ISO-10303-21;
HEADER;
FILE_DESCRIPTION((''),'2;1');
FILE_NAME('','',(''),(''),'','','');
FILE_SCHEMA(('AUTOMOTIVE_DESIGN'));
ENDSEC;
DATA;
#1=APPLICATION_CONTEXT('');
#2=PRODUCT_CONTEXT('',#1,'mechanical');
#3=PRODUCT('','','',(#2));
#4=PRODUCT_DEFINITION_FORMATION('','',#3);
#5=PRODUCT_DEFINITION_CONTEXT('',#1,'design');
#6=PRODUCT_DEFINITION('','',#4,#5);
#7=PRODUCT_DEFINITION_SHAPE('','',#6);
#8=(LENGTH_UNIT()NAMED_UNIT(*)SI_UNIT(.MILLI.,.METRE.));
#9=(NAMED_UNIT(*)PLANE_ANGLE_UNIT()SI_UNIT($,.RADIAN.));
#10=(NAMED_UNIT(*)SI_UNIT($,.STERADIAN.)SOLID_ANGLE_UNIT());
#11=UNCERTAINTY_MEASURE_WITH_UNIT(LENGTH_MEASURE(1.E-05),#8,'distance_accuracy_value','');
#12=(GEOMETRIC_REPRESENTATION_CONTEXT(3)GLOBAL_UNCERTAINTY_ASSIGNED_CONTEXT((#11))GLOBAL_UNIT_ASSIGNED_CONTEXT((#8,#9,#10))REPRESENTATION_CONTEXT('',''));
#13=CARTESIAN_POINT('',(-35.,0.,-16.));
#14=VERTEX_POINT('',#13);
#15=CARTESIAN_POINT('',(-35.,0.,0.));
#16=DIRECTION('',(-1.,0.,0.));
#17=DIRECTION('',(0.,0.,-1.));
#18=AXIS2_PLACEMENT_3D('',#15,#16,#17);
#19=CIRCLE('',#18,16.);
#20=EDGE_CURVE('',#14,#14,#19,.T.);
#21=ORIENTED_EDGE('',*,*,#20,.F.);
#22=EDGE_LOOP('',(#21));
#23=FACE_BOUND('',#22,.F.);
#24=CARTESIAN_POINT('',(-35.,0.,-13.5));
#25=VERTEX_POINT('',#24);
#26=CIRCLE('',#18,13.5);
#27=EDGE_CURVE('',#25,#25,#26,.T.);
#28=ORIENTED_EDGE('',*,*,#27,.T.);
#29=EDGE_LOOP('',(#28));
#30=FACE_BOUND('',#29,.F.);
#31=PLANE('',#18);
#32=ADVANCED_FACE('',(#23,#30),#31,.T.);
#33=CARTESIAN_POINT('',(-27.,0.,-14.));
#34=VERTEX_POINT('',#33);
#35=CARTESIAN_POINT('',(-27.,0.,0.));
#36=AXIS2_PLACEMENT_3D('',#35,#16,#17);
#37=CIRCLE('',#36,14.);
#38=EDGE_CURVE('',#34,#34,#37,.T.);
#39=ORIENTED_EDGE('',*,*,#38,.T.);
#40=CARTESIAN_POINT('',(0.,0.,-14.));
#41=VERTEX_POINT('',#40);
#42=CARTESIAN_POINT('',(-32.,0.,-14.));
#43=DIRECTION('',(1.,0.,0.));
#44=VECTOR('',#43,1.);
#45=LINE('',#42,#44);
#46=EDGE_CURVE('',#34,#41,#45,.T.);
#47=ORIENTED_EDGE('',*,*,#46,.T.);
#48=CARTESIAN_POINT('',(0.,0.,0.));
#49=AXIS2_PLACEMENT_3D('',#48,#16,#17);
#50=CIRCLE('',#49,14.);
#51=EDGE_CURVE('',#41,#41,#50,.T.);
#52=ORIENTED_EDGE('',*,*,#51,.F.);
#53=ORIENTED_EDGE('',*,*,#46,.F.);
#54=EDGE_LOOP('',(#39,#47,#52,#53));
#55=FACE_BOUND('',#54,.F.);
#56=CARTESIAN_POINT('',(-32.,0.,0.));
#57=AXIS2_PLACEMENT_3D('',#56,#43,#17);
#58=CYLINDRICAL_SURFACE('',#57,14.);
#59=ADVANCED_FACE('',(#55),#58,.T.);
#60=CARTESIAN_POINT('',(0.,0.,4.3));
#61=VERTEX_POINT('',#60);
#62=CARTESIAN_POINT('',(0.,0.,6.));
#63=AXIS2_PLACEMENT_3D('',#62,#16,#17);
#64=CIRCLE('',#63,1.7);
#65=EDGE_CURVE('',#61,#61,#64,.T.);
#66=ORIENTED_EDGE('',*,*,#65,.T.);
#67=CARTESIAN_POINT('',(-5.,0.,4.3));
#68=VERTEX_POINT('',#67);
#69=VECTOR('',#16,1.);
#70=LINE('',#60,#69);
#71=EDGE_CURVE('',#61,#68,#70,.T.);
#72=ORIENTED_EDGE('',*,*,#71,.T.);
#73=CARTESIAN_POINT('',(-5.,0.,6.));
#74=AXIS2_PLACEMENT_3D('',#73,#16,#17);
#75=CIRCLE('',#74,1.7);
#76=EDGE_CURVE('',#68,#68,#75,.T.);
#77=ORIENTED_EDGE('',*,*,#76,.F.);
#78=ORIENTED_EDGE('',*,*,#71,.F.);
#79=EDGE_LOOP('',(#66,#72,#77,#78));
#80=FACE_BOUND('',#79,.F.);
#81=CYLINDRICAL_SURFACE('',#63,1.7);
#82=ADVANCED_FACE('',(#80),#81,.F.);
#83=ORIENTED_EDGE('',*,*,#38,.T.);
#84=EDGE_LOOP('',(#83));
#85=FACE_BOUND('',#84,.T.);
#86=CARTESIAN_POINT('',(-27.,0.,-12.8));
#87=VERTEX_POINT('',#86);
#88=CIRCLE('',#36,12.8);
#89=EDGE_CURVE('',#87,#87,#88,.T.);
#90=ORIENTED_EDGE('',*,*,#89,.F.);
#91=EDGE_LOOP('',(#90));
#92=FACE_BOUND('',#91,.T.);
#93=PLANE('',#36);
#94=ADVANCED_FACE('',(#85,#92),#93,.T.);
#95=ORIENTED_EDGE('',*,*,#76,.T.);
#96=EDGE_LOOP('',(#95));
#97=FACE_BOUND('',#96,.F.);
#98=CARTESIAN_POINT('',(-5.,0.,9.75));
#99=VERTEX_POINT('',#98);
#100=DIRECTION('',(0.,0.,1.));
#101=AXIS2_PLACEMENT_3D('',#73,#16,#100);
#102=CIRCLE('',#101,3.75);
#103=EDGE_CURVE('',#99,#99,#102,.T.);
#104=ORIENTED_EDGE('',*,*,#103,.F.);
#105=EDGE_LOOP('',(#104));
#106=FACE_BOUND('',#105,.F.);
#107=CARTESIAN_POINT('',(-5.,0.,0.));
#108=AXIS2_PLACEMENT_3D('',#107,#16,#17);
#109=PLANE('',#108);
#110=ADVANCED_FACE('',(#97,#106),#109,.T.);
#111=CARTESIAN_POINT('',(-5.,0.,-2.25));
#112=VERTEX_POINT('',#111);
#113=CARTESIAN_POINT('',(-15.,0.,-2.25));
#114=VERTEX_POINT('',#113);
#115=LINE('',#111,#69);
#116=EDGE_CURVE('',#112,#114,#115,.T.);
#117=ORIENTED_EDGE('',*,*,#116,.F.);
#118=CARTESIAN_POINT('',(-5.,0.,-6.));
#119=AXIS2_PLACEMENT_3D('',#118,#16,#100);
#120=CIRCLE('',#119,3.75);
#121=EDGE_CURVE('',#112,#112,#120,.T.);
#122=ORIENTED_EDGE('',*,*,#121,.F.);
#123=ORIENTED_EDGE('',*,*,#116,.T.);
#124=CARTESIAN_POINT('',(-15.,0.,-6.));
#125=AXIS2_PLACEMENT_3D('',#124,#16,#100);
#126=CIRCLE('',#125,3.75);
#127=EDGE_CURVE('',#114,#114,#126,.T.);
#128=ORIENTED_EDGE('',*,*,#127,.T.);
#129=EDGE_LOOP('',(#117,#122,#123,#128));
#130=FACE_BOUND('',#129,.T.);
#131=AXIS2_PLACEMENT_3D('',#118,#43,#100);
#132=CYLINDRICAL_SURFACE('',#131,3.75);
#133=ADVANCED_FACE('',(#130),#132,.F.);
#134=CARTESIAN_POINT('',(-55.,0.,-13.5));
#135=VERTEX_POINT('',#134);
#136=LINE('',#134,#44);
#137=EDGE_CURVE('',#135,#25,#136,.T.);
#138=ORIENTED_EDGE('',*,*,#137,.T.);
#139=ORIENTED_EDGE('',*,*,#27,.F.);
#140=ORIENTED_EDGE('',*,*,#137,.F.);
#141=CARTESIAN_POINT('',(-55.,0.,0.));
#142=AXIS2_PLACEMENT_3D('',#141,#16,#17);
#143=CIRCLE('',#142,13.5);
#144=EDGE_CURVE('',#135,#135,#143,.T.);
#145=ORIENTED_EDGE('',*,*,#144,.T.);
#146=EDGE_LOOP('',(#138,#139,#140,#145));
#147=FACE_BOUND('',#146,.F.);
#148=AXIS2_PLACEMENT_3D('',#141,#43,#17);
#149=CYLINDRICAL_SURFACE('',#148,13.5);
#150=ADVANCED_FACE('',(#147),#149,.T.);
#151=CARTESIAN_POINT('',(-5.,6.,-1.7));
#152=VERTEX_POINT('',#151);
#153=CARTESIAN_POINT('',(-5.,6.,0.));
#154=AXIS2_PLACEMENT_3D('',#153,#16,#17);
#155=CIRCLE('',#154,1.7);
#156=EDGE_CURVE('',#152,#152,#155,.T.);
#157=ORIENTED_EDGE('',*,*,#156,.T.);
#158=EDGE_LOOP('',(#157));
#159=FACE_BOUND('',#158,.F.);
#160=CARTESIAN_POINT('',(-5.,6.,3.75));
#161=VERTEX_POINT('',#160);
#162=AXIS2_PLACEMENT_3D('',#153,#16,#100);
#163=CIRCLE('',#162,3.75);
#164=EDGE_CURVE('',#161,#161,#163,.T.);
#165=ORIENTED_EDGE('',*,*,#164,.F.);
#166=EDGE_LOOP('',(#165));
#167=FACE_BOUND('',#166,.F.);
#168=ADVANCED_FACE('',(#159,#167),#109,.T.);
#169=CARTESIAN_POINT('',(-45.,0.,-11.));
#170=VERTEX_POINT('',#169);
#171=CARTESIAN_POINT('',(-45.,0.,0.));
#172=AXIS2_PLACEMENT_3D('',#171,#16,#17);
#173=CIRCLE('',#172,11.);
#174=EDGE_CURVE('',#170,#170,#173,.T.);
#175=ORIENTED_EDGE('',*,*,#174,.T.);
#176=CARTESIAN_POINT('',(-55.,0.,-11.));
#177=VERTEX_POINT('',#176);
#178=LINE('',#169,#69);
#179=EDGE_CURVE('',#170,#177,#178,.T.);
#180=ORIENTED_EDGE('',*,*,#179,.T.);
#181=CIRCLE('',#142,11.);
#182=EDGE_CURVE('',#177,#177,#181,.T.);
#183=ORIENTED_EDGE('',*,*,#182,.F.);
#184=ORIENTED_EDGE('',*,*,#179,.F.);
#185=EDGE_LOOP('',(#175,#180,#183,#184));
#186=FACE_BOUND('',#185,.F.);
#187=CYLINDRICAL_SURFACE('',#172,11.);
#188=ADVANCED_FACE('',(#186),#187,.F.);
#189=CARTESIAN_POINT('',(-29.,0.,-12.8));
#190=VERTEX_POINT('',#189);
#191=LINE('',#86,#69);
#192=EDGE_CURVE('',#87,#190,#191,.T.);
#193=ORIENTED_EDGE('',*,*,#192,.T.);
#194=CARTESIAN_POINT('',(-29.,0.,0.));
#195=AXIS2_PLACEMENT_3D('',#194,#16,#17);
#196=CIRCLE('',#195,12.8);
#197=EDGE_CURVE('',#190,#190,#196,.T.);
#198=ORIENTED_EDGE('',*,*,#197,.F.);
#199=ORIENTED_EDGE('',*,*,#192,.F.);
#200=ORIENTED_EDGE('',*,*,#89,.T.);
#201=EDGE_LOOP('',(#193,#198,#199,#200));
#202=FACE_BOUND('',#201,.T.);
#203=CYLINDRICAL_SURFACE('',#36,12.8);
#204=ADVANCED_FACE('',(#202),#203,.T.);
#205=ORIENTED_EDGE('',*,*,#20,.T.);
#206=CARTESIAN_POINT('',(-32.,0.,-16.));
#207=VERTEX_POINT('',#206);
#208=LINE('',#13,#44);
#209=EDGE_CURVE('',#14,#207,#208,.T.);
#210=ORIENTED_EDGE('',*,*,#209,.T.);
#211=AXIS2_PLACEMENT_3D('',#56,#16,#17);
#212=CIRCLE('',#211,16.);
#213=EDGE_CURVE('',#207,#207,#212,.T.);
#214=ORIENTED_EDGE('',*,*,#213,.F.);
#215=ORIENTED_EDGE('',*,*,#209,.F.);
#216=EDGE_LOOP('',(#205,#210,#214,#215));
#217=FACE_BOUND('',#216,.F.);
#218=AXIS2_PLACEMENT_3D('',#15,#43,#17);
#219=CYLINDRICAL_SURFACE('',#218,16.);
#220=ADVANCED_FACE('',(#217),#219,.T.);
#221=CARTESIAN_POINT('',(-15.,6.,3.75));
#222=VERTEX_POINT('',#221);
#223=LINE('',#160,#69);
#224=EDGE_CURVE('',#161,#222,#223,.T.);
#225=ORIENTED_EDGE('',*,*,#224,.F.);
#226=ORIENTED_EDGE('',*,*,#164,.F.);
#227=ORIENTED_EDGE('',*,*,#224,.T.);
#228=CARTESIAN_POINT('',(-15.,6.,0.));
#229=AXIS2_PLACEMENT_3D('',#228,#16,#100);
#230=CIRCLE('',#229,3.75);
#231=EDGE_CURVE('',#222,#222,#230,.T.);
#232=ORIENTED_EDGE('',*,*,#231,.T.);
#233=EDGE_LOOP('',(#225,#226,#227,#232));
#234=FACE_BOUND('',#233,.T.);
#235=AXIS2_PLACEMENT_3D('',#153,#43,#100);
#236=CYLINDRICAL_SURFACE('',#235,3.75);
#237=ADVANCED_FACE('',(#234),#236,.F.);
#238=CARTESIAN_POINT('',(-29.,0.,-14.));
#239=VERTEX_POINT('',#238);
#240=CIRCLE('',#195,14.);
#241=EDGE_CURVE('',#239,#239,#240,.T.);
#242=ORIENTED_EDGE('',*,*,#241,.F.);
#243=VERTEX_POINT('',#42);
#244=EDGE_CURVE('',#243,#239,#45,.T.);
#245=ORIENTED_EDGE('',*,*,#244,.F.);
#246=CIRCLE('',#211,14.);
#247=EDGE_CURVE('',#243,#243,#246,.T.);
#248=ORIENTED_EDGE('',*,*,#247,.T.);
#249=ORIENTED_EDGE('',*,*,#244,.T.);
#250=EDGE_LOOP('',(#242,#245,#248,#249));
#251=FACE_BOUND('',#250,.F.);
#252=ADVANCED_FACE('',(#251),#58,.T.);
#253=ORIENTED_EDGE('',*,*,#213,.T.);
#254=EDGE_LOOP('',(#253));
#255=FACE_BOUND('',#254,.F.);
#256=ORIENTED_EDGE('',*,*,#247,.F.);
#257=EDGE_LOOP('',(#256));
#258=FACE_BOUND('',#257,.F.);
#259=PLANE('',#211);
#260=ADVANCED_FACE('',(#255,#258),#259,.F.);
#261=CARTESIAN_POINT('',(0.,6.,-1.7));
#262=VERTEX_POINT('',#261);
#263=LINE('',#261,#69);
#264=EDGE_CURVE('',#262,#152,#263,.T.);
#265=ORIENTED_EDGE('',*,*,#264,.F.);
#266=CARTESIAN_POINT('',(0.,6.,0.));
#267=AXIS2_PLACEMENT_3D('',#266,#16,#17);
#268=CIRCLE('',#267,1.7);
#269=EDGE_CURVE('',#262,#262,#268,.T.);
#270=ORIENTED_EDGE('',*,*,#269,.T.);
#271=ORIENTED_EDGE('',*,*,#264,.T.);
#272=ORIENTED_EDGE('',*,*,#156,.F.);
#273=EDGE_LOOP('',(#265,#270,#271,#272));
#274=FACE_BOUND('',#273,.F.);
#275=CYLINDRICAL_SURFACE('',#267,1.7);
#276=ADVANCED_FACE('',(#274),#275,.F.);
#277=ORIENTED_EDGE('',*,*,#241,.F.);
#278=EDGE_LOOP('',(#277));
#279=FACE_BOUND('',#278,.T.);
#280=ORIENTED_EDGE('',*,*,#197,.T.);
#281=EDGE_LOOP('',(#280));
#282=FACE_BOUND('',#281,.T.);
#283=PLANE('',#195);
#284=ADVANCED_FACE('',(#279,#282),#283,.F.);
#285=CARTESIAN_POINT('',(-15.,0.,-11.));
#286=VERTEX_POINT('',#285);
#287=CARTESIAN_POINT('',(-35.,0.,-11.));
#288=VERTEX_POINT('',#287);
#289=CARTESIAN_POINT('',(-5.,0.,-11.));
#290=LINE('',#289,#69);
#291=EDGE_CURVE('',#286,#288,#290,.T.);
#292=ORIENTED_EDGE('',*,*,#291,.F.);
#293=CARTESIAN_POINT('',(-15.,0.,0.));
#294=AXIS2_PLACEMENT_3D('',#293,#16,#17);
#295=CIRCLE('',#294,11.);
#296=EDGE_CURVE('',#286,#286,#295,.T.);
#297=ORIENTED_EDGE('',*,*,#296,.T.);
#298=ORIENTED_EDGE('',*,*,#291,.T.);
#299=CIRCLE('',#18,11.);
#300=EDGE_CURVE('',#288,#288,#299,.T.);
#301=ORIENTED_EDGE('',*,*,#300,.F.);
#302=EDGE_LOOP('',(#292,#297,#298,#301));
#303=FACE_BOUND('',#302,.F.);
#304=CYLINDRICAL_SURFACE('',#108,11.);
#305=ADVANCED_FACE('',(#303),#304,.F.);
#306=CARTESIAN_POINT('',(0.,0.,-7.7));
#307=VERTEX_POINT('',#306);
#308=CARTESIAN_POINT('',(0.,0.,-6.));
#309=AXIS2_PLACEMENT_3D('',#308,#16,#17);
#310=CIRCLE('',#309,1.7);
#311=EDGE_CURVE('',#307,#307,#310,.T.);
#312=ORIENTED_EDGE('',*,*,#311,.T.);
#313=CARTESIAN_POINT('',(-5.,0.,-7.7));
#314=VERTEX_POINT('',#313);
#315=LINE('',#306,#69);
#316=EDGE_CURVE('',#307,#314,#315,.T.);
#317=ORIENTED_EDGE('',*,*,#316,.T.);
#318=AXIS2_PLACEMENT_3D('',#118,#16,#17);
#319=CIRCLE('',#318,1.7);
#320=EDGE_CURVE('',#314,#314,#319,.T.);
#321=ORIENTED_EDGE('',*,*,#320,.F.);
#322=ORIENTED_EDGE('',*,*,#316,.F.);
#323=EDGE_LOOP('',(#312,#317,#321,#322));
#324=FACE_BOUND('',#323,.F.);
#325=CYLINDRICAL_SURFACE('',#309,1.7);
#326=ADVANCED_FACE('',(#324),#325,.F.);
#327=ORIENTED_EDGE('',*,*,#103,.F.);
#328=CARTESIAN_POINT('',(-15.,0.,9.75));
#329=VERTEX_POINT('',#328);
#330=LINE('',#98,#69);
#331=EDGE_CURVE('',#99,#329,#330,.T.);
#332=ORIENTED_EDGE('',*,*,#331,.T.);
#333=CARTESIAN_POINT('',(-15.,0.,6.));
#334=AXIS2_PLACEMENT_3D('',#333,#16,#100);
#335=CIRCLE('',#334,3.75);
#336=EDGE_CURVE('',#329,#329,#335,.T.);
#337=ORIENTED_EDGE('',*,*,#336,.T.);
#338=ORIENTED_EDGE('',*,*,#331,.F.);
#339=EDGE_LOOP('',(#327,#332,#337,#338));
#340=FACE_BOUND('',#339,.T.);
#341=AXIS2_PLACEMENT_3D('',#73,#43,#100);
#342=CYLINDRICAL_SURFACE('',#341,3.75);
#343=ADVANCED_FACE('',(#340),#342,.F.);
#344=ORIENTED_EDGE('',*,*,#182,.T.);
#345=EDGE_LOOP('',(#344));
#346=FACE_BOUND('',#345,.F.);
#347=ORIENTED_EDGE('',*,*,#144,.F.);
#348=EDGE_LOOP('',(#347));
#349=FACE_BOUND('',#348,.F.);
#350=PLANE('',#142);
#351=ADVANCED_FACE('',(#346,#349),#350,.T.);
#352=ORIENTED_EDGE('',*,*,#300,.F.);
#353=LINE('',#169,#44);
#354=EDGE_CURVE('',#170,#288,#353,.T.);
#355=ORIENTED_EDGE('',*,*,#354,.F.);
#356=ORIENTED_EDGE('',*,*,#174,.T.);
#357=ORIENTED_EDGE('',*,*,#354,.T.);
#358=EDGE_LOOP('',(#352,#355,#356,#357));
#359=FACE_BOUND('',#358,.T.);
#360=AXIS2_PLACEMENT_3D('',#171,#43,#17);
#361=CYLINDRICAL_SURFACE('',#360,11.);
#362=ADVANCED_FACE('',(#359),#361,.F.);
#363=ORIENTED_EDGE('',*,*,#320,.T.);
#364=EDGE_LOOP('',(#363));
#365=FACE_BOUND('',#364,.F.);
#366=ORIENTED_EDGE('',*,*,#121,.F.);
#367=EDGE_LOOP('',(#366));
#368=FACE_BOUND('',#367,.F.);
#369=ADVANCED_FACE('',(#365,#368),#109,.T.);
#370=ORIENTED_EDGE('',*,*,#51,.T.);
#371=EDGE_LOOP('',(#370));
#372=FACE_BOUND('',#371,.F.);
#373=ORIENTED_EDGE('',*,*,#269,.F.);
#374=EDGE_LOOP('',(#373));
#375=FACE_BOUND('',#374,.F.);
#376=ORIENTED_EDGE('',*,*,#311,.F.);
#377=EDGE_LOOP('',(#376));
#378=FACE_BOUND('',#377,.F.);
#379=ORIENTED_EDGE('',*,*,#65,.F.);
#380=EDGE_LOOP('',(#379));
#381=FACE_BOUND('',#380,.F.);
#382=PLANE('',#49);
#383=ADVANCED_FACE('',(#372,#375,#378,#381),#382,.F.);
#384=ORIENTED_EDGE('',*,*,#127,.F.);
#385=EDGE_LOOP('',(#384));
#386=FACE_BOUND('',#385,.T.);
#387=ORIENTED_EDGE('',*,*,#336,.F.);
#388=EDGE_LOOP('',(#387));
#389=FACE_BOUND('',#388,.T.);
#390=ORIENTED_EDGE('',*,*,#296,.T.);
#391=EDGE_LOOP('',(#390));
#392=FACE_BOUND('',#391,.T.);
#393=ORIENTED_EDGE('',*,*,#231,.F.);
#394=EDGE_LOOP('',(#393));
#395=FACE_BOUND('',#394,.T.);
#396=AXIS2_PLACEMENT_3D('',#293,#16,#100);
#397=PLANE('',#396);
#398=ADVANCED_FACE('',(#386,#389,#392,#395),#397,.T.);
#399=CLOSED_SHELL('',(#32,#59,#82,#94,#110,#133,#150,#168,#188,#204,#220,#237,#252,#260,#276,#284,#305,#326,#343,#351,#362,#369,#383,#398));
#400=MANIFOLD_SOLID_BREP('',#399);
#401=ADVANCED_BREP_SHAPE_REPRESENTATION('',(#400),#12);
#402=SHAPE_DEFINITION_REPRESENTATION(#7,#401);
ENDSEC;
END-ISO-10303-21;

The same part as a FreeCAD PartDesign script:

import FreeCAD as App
import Part
import Sketcher

V = App.Vector
Q = App.Units.Quantity


def add_polygon(sketch, points):
    """Adds a closed chain of lines whose ends are joined by coincident constraints."""
    first, n = sketch.GeometryCount, len(points)
    for a, b in zip(points, points[1:] + points[:1]):
        sketch.addGeometry(Part.LineSegment(App.Vector(*a, 0), App.Vector(*b, 0)), False)
    for i in range(n):
        sketch.addConstraint(Sketcher.Constraint("Coincident", first + i, 2, first + (i + 1) % n, 1))

doc = App.newDocument("Part")
body = doc.addObject("PartDesign::Body", "Body")

sketch1 = doc.addObject("Sketcher::SketchObject", "Sketch")
body.addObject(sketch1)
sketch1.AttachmentSupport = (doc.XZ_Plane, [""])
sketch1.MapMode = "FlatFace"
add_polygon(sketch1, [(-5, 0), (0, 0), (0, -14), (-27, -14), (-27, -12.8), (-29, -12.8), (-29, -14), (-32, -14), (-32, -16), (-35, -16), (-35, -13.5), (-55, -13.5), (-55, -11), (-5, -11)])
sketch1.addConstraint([
    Sketcher.Constraint("Horizontal", 0),
    Sketcher.Constraint("Vertical", 1),
    Sketcher.Constraint("Horizontal", 2),
    Sketcher.Constraint("Vertical", 3),
    Sketcher.Constraint("Horizontal", 4),
    Sketcher.Constraint("Vertical", 5),
    Sketcher.Constraint("Horizontal", 6),
    Sketcher.Constraint("Vertical", 7),
    Sketcher.Constraint("Horizontal", 8),
    Sketcher.Constraint("Vertical", 9),
    Sketcher.Constraint("Horizontal", 10),
    Sketcher.Constraint("Vertical", 11),
    Sketcher.Constraint("Horizontal", 12),
    Sketcher.Constraint("Vertical", 13),
    Sketcher.Constraint("Coincident", 0, 2, -1, 1),
    Sketcher.Constraint("Horizontal", 2, 2, 5, 2),
    Sketcher.Constraint("Equal", 6, 8),
    Sketcher.Constraint("Equal", 4, 7),
    Sketcher.Constraint("Equal", 9, 11),
    Sketcher.Constraint("DistanceX", 0, 1, 0, 2, Q("5 mm")),
    Sketcher.Constraint("DistanceX", 4, 2, 4, 1, Q("2 mm")),
    Sketcher.Constraint("DistanceX", 6, 2, 6, 1, Q("3 mm")),
    Sketcher.Constraint("DistanceX", 12, 1, 12, 2, Q("50 mm")),
    Sketcher.Constraint("DistanceY", 3, 1, 3, 2, Q("1.2 mm")),
    Sketcher.Constraint("DistanceY", 9, 1, 9, 2, Q("2.5 mm")),
    Sketcher.Constraint("DistanceX", 6, 2, -1, 1, Q("32 mm")),
    Sketcher.Constraint("DistanceY", 1, 2, 1, 1, Q("14 mm")),
])
revolution = doc.addObject("PartDesign::Revolution", "Revolution")
body.addObject(revolution)
revolution.Profile = sketch1
revolution.ReferenceAxis = (sketch1, ["H_Axis"])
revolution.Angle = 360

sketch2 = doc.addObject("Sketcher::SketchObject", "Sketch001")
body.addObject(sketch2)
sketch2.AttachmentSupport = (doc.YZ_Plane, [""])
sketch2.MapMode = "FlatFace"
sketch2.addGeometry([
    Part.Circle(V(0, -6, 0), V(0, 0, 1), 1.7),
    Part.Circle(V(0, 6, 0), V(0, 0, 1), 1.7),
    Part.Circle(V(6, 0, 0), V(0, 0, 1), 1.7),
], False)
sketch2.addConstraint([
    Sketcher.Constraint("Equal", 0, 1),
    Sketcher.Constraint("Equal", 1, 2),
    Sketcher.Constraint("Symmetric", 0, 3, 1, 3, -1, 1),
    Sketcher.Constraint("PointOnObject", 0, 3, -2),
    Sketcher.Constraint("PointOnObject", 2, 3, -1),
    Sketcher.Constraint("Diameter", 0, Q("3.4 mm")),
    Sketcher.Constraint("DistanceY", 0, 3, -1, 1, Q("6 mm")),
    Sketcher.Constraint("DistanceX", -1, 1, 2, 3, Q("6 mm")),
])
doc.recompute()
hole = doc.addObject("PartDesign::Hole", "Hole")
body.addObject(hole)
hole.Profile = sketch2
hole.ThreadType = "None"
hole.Diameter = 3.4
hole.DepthType = "ThroughAll"

sketch3 = doc.addObject("Sketcher::SketchObject", "Sketch002")
body.addObject(sketch3)
sketch3.AttachmentSupport = (doc.YZ_Plane, [""])
sketch3.MapMode = "FlatFace"
sketch3.AttachmentOffset = App.Placement(V(0, 0, -5), App.Rotation())
sketch3.addGeometry([
    Part.Circle(V(0, 0, 0), V(0, 0, 1), 11),
    Part.Circle(V(0, -6, 0), V(0, 0, 1), 3.8),
    Part.Circle(V(0, 6, 0), V(0, 0, 1), 3.8),
    Part.Circle(V(6, 0, 0), V(0, 0, 1), 3.8),
], False)
sketch3.addConstraint([
    Sketcher.Constraint("Coincident", 0, 3, -1, 1),
    Sketcher.Constraint("Equal", 1, 2),
    Sketcher.Constraint("Equal", 2, 3),
    Sketcher.Constraint("Symmetric", 1, 3, 2, 3, -1, 1),
    Sketcher.Constraint("PointOnObject", 1, 3, -2),
    Sketcher.Constraint("PointOnObject", 3, 3, -1),
    Sketcher.Constraint("Diameter", 1, Q("7.5 mm")),
    Sketcher.Constraint("Diameter", 0, Q("22 mm")),
    Sketcher.Constraint("DistanceY", 1, 3, -1, 1, Q("6 mm")),
    Sketcher.Constraint("DistanceX", -1, 1, 3, 3, Q("6 mm")),
])
pad1 = doc.addObject("PartDesign::Pad", "Pad")
body.addObject(pad1)
pad1.Profile = sketch3
pad1.Length = 10
pad1.Reversed = True

doc.recompute()
